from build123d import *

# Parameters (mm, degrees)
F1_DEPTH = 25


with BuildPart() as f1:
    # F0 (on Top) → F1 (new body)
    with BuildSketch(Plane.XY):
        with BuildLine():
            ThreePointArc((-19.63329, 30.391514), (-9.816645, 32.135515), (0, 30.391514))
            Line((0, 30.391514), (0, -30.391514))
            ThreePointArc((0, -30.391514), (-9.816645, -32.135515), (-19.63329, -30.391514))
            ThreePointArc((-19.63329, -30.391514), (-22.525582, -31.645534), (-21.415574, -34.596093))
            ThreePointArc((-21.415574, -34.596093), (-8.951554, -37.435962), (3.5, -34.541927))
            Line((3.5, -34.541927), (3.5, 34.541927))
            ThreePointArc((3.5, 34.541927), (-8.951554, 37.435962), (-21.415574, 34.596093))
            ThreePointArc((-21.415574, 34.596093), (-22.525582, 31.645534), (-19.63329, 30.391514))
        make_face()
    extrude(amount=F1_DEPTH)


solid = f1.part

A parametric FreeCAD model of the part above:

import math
import FreeCAD as App
import Part
import Sketcher
from FreeCAD import Vector

doc = App.newDocument("Part")
body = doc.addObject("PartDesign::Body", "Body")

# Sketch on XY plane
sketch1 = body.newObject("Sketcher::SketchObject", "Sketch")
sketch1.AttachmentSupport = (doc.getObject("XY_Plane"), [""])
sketch1.MapMode = "FlatFace"
sketch1.addGeometry([
    Part.ArcOfCircle(Part.Circle(Vector(-9.8, 3.6, 0), Vector(0, 0, 1), 28.5), math.radians(70), math.radians(110)),  # 0
    Part.LineSegment(Vector(0, 30.4, 0), Vector(0, -30.4, 0)),  # 1
    Part.ArcOfCircle(Part.Circle(Vector(-9.8, -3.6, 0), Vector(0, 0, 1), 28.5), math.radians(-110), math.radians(-70)),  # 2
    Part.ArcOfCircle(Part.Circle(Vector(-20.4, -32.5, 0), Vector(0, 0, 1), 2.3), math.radians(70), math.radians(244)),  # 3
    Part.ArcOfCircle(Part.Circle(Vector(-9, -8.9, 0), Vector(0, 0, 1), 28.5), math.radians(-116), math.radians(-64)),  # 4
    Part.LineSegment(Vector(3.5, -34.5, 0), Vector(3.5, 34.5, 0)),  # 5
    Part.ArcOfCircle(Part.Circle(Vector(-9, 8.9, 0), Vector(0, 0, 1), 28.5), math.radians(64), math.radians(116)),  # 6
    Part.ArcOfCircle(Part.Circle(Vector(-20.4, 32.5, 0), Vector(0, 0, 1), 2.3), math.radians(116), math.radians(290)),  # 7
], False)
sketch1.addConstraint([
    Sketcher.Constraint("Coincident", 0, 1, 1, 1),
    Sketcher.Constraint("Coincident", 1, 2, 2, 2),
    Sketcher.Constraint("Tangent", 2, 1, 3, 1),
    Sketcher.Constraint("Tangent", 3, 2, 4, 1),
    Sketcher.Constraint("Coincident", 4, 2, 5, 1),
    Sketcher.Constraint("Coincident", 5, 2, 6, 1),
    Sketcher.Constraint("Tangent", 6, 2, 7, 1),
    Sketcher.Constraint("Tangent", 7, 2, 0, 2),
    Sketcher.Constraint("Vertical", 1),
    Sketcher.Constraint("Vertical", 5),
    Sketcher.Constraint("Equal", 0, 2),
    Sketcher.Constraint("Equal", 2, 4),
    Sketcher.Constraint("Equal", 4, 6),
    Sketcher.Constraint("Equal", 3, 7),
    Sketcher.Constraint("Symmetric", 0, 1, 1, 2, -1, 1),
    Sketcher.Constraint("Symmetric", 4, 3, 6, 3, -1),
    Sketcher.Constraint("Horizontal", 1, 2, 2, 1),
    Sketcher.Constraint("Horizontal", 0, 1, 7, 2),
    Sketcher.Constraint("Radius", 0, 28.5),
    Sketcher.Constraint("DistanceX", -1, 1, 4, 2, 3.5),
    Sketcher.Constraint("Radius", 3, 2.286141),
    Sketcher.Constraint("DistanceY", 0, 3, 0, 1, 26.755999),
    Sketcher.Constraint("DistanceY", 1, 2, 1, 1, 60.783028),
    Sketcher.Constraint("DistanceY", 5, 1, 5, 2, 69.083854),
])
pad1 = body.newObject("PartDesign::Pad", "Pad")
pad1.Profile = sketch1
pad1.Length = 25

doc.recompute()
